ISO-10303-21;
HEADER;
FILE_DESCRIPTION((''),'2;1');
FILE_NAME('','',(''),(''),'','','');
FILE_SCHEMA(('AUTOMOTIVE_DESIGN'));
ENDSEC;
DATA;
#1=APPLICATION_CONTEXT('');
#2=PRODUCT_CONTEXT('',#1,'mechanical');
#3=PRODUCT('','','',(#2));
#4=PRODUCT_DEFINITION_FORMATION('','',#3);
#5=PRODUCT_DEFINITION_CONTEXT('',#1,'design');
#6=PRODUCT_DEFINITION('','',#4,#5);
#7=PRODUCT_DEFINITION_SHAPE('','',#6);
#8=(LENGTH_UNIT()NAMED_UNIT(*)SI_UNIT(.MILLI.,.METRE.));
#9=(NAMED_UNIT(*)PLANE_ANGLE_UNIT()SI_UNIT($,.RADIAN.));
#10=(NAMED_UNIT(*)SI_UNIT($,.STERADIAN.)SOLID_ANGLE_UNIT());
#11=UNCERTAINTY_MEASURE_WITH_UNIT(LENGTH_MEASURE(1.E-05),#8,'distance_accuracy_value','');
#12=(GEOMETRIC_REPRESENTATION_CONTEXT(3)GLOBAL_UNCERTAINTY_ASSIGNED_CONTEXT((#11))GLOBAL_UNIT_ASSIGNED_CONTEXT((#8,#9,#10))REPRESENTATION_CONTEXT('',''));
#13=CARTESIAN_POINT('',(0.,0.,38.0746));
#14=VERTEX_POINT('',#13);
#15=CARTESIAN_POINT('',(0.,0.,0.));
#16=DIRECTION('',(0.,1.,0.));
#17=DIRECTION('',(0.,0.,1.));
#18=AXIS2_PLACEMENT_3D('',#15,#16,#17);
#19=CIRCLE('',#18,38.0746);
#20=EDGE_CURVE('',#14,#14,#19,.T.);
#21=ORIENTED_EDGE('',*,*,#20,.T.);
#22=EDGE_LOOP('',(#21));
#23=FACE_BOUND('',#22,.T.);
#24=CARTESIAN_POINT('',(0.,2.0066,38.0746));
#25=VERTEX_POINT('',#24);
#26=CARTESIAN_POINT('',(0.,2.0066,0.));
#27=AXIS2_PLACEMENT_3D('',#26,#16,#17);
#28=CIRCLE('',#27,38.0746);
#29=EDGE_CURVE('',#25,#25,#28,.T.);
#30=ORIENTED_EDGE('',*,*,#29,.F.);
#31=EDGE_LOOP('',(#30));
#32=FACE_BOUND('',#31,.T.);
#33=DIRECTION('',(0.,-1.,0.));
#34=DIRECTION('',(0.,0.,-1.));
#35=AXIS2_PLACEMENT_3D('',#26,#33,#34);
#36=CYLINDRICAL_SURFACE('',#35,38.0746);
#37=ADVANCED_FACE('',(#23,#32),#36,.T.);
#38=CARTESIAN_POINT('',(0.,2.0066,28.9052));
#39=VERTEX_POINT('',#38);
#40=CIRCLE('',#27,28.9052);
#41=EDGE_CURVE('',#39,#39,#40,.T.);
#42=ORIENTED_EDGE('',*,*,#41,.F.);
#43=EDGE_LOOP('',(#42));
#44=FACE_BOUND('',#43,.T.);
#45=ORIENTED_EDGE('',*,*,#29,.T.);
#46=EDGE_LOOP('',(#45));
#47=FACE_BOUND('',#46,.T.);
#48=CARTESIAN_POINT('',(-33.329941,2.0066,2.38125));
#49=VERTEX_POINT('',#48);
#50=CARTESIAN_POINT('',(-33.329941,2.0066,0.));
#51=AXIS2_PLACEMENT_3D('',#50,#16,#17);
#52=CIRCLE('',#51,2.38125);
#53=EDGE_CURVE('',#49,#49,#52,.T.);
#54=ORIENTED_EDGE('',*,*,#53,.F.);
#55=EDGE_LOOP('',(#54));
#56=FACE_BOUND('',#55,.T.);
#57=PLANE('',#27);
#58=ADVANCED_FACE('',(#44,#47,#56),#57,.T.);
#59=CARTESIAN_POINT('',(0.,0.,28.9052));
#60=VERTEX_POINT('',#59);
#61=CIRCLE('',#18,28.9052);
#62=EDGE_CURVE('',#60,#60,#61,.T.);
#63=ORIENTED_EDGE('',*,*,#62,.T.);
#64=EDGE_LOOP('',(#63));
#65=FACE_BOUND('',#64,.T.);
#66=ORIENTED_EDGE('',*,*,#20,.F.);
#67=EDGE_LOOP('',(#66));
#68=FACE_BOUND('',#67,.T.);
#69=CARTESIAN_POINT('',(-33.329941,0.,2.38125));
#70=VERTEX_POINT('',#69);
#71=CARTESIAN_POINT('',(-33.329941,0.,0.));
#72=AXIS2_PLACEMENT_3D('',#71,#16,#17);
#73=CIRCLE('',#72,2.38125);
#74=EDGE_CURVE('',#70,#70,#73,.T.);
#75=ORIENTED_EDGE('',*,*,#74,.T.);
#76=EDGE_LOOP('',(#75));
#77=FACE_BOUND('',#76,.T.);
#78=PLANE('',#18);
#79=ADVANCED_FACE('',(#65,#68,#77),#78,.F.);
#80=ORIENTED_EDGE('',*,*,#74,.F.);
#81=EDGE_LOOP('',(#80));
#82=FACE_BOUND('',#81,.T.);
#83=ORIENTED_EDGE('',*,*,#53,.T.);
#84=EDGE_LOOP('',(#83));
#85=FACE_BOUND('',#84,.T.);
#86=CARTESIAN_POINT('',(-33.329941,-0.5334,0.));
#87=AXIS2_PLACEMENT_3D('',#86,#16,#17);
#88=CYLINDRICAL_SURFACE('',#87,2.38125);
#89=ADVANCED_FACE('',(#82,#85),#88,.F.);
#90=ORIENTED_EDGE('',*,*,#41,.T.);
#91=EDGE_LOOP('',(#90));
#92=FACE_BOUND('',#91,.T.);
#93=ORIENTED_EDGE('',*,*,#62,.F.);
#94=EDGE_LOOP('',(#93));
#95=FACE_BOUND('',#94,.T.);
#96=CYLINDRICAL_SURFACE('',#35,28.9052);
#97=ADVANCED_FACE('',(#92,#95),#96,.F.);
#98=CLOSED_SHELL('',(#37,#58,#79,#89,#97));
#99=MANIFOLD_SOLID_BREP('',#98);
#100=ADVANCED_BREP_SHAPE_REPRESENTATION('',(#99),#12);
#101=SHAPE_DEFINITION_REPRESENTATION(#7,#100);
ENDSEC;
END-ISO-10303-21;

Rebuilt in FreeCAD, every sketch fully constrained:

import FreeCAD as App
import Part
import Sketcher

V = App.Vector
Q = App.Units.Quantity

doc = App.newDocument("Part")
body = doc.addObject("PartDesign::Body", "Body")

# Sketch on XZ plane
sketch1 = body.newObject("Sketcher::SketchObject", "Sketch")
sketch1.AttachmentSupport = (doc.getObject("XZ_Plane"), [""])
sketch1.MapMode = "FlatFace"
sketch1.addGeometry([
    Part.Circle(V(0, 0, 0), V(0, 0, 1), 38.0746),
    Part.Circle(V(0, 0, 0), V(0, 0, 1), 28.9052),
], False)
sketch1.addConstraint([
    Sketcher.Constraint("Coincident", 0, 3, -1, 1),
    Sketcher.Constraint("Coincident", 1, 3, -1, 1),
    Sketcher.Constraint("Diameter", 0, Q("2.998 in")),
    Sketcher.Constraint("Diameter", 1, Q("2.276 in")),
])
pad1 = body.newObject("PartDesign::Pad", "Pad")
pad1.Profile = sketch1
pad1.Length = Q("0.079 in")
pad1.Reversed = True

# Sketch on XZ plane
sketch2 = body.newObject("Sketcher::SketchObject", "Sketch001")
sketch2.AttachmentSupport = (doc.getObject("XZ_Plane"), [""])
sketch2.MapMode = "FlatFace"
sketch2.AttachmentOffset = App.Placement(V(0, 0, -0.079 * 25.4), App.Rotation())
sketch2.addGeometry(Part.Circle(V(-33.329941, 0, 0), V(0, 0, 1), 2.38125), False)
sketch2.addConstraint([
    Sketcher.Constraint("PointOnObject", 0, 3, -1),
    Sketcher.Constraint("Diameter", 0, Q("0.1875 in")),
    Sketcher.Constraint("DistanceX", 0, 3, -1, 1, Q("33.329941 mm")),
])
pocket1 = body.newObject("PartDesign::Pocket", "Pocket")
pocket1.Profile = sketch2
pocket1.Length = Q("0.1 in")
pocket1.Reversed = True

doc.recompute()
